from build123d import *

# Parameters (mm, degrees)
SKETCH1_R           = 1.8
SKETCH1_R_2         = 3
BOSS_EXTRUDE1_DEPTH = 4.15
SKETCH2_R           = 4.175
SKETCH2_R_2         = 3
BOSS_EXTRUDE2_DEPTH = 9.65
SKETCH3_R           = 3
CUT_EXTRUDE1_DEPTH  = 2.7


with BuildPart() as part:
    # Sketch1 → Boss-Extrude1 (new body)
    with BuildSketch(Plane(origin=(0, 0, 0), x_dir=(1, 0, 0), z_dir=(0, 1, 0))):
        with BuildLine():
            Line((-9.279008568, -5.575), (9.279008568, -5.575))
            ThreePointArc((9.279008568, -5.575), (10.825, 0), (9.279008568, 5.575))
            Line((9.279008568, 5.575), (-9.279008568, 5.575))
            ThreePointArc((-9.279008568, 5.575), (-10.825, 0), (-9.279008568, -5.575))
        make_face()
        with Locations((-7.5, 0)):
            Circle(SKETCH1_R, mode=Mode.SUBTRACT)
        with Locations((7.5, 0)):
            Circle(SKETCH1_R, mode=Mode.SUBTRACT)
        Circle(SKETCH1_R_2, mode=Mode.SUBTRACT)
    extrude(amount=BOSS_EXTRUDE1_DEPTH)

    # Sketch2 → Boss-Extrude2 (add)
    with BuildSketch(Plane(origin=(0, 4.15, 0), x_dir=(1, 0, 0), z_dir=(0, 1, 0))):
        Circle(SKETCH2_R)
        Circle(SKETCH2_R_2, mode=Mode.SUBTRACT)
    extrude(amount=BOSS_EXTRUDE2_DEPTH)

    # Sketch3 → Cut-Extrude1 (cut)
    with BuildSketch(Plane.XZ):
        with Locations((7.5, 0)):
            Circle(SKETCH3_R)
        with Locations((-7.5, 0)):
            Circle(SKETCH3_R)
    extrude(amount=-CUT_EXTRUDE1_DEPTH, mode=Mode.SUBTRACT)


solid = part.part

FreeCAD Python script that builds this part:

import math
import FreeCAD as App
import Part
import Sketcher

V = App.Vector

doc = App.newDocument("Part")
params = doc.addObject("Spreadsheet::Sheet", "Params")
for row, (alias, value) in enumerate([
    ("sketch1_diameter", "6 mm"),
    ("sketch1_diameter2", "3.6 mm"),
    ("pad1_length", "4.15 mm"),
    ("sketch2_diameter", "6 mm"),
    ("sketch2_diameter2", "8.35 mm"),
    ("pad2_length", "9.65 mm"),
    ("sketch3_diameter", "6 mm"),
    ("pocket1_length", "2.7 mm"),
], start=1):
    params.set(f"A{row}", alias)
    params.set(f"B{row}", "=" + value)
    params.setAlias(f"B{row}", alias)

body = doc.addObject("PartDesign::Body", "Body")

# Sketch on XZ plane
sketch1 = doc.addObject("Sketcher::SketchObject", "Sketch")
body.addObject(sketch1)
sketch1.AttachmentSupport = (doc.XZ_Plane, [""])
sketch1.MapMode = "FlatFace"
sketch1.addGeometry([
    Part.LineSegment(V(-9.3, 5.6, 0), V(9.3, 5.6, 0)),  # 0
    Part.ArcOfCircle(Part.Circle(V(0, 0, 0), V(0, 0, 1), 10.8), math.radians(-31), math.radians(31)),  # 1
    Part.LineSegment(V(9.3, -5.6, 0), V(-9.3, -5.6, 0)),  # 2
    Part.ArcOfCircle(Part.Circle(V(0, 0, 0), V(0, 0, 1), 10.8), math.radians(149), math.radians(211)),  # 3
    Part.Circle(V(-7.5, 0, 0), V(0, 0, 1), 1.8),  # 4
    Part.Circle(V(0, 0, 0), V(0, 0, 1), 3),  # 5
    Part.Circle(V(7.5, 0, 0), V(0, 0, 1), 1.8),  # 6
], False)
sketch1.addConstraint([
    Sketcher.Constraint("Coincident", 0, 2, 1, 2),
    Sketcher.Constraint("Coincident", 1, 1, 2, 1),
    Sketcher.Constraint("Coincident", 2, 2, 3, 2),
    Sketcher.Constraint("Coincident", 3, 1, 0, 1),
    Sketcher.Constraint("Horizontal", 0),
    Sketcher.Constraint("Horizontal", 2),
    Sketcher.Constraint("Coincident", 1, 3, -1, 1),
    Sketcher.Constraint("Coincident", 3, 3, -1, 1),
    Sketcher.Constraint("Coincident", 5, 3, -1, 1),
    Sketcher.Constraint("Equal", 1, 3),
    Sketcher.Constraint("Equal", 4, 6),
    Sketcher.Constraint("Symmetric", 4, 3, 6, 3, -1, 1),
    Sketcher.Constraint("PointOnObject", 4, 3, -1),
    Sketcher.Constraint("Vertical", 0, 2, 1, 1),
    Sketcher.Constraint("Diameter", 5, 6.0),
    Sketcher.Constraint("Diameter", 4, 3.6),
    Sketcher.Constraint("Radius", 1, 10.825),
    Sketcher.Constraint("DistanceX", 4, 3, 6, 3, 15.0),
    Sketcher.Constraint("DistanceY", 1, 1, 0, 2, 11.15),
])
sketch1.setExpression("Constraints[14]", "Params.sketch1_diameter")
sketch1.setExpression("Constraints[15]", "Params.sketch1_diameter2")
pad1 = doc.addObject("PartDesign::Pad", "Pad")
body.addObject(pad1)
pad1.Profile = sketch1
pad1.setExpression("Length", "Params.pad1_length")
pad1.Reversed = True

# Sketch on XZ plane
sketch2 = doc.addObject("Sketcher::SketchObject", "Sketch001")
body.addObject(sketch2)
sketch2.AttachmentSupport = (doc.XZ_Plane, [""])
sketch2.MapMode = "FlatFace"
sketch2.AttachmentOffset = App.Placement(V(0, 0, -4.15), App.Rotation())
sketch2.addGeometry([
    Part.Circle(V(0, 0, 0), V(0, 0, 1), 4.2),
    Part.Circle(V(0, 0, 0), V(0, 0, 1), 3),
], False)
sketch2.addConstraint([
    Sketcher.Constraint("Coincident", 0, 3, -1, 1),
    Sketcher.Constraint("Coincident", 1, 3, -1, 1),
    Sketcher.Constraint("Diameter", 1, 6.0),
    Sketcher.Constraint("Diameter", 0, 8.35),
])
sketch2.setExpression("Constraints[2]", "Params.sketch2_diameter")
sketch2.setExpression("Constraints[3]", "Params.sketch2_diameter2")
pad2 = doc.addObject("PartDesign::Pad", "Pad001")
body.addObject(pad2)
pad2.Profile = sketch2
pad2.setExpression("Length", "Params.pad2_length")
pad2.Reversed = True

# Sketch on XZ plane
sketch3 = doc.addObject("Sketcher::SketchObject", "Sketch002")
body.addObject(sketch3)
sketch3.AttachmentSupport = (doc.XZ_Plane, [""])
sketch3.MapMode = "FlatFace"
sketch3.addGeometry([
    Part.Circle(V(7.5, 0, 0), V(0, 0, 1), 3),
    Part.Circle(V(-7.5, 0, 0), V(0, 0, 1), 3),
], False)
sketch3.addConstraint([
    Sketcher.Constraint("Equal", 0, 1),
    Sketcher.Constraint("Symmetric", 0, 3, 1, 3, -1, 1),
    Sketcher.Constraint("PointOnObject", 0, 3, -1),
    Sketcher.Constraint("Diameter", 0, 6.0),
    Sketcher.Constraint("DistanceX", 1, 3, 0, 3, 15.0),
])
sketch3.setExpression("Constraints[3]", "Params.sketch3_diameter")
pocket1 = doc.addObject("PartDesign::Pocket", "Pocket")
body.addObject(pocket1)
pocket1.Profile = sketch3
pocket1.setExpression("Length", "Params.pocket1_length")

doc.recompute()
